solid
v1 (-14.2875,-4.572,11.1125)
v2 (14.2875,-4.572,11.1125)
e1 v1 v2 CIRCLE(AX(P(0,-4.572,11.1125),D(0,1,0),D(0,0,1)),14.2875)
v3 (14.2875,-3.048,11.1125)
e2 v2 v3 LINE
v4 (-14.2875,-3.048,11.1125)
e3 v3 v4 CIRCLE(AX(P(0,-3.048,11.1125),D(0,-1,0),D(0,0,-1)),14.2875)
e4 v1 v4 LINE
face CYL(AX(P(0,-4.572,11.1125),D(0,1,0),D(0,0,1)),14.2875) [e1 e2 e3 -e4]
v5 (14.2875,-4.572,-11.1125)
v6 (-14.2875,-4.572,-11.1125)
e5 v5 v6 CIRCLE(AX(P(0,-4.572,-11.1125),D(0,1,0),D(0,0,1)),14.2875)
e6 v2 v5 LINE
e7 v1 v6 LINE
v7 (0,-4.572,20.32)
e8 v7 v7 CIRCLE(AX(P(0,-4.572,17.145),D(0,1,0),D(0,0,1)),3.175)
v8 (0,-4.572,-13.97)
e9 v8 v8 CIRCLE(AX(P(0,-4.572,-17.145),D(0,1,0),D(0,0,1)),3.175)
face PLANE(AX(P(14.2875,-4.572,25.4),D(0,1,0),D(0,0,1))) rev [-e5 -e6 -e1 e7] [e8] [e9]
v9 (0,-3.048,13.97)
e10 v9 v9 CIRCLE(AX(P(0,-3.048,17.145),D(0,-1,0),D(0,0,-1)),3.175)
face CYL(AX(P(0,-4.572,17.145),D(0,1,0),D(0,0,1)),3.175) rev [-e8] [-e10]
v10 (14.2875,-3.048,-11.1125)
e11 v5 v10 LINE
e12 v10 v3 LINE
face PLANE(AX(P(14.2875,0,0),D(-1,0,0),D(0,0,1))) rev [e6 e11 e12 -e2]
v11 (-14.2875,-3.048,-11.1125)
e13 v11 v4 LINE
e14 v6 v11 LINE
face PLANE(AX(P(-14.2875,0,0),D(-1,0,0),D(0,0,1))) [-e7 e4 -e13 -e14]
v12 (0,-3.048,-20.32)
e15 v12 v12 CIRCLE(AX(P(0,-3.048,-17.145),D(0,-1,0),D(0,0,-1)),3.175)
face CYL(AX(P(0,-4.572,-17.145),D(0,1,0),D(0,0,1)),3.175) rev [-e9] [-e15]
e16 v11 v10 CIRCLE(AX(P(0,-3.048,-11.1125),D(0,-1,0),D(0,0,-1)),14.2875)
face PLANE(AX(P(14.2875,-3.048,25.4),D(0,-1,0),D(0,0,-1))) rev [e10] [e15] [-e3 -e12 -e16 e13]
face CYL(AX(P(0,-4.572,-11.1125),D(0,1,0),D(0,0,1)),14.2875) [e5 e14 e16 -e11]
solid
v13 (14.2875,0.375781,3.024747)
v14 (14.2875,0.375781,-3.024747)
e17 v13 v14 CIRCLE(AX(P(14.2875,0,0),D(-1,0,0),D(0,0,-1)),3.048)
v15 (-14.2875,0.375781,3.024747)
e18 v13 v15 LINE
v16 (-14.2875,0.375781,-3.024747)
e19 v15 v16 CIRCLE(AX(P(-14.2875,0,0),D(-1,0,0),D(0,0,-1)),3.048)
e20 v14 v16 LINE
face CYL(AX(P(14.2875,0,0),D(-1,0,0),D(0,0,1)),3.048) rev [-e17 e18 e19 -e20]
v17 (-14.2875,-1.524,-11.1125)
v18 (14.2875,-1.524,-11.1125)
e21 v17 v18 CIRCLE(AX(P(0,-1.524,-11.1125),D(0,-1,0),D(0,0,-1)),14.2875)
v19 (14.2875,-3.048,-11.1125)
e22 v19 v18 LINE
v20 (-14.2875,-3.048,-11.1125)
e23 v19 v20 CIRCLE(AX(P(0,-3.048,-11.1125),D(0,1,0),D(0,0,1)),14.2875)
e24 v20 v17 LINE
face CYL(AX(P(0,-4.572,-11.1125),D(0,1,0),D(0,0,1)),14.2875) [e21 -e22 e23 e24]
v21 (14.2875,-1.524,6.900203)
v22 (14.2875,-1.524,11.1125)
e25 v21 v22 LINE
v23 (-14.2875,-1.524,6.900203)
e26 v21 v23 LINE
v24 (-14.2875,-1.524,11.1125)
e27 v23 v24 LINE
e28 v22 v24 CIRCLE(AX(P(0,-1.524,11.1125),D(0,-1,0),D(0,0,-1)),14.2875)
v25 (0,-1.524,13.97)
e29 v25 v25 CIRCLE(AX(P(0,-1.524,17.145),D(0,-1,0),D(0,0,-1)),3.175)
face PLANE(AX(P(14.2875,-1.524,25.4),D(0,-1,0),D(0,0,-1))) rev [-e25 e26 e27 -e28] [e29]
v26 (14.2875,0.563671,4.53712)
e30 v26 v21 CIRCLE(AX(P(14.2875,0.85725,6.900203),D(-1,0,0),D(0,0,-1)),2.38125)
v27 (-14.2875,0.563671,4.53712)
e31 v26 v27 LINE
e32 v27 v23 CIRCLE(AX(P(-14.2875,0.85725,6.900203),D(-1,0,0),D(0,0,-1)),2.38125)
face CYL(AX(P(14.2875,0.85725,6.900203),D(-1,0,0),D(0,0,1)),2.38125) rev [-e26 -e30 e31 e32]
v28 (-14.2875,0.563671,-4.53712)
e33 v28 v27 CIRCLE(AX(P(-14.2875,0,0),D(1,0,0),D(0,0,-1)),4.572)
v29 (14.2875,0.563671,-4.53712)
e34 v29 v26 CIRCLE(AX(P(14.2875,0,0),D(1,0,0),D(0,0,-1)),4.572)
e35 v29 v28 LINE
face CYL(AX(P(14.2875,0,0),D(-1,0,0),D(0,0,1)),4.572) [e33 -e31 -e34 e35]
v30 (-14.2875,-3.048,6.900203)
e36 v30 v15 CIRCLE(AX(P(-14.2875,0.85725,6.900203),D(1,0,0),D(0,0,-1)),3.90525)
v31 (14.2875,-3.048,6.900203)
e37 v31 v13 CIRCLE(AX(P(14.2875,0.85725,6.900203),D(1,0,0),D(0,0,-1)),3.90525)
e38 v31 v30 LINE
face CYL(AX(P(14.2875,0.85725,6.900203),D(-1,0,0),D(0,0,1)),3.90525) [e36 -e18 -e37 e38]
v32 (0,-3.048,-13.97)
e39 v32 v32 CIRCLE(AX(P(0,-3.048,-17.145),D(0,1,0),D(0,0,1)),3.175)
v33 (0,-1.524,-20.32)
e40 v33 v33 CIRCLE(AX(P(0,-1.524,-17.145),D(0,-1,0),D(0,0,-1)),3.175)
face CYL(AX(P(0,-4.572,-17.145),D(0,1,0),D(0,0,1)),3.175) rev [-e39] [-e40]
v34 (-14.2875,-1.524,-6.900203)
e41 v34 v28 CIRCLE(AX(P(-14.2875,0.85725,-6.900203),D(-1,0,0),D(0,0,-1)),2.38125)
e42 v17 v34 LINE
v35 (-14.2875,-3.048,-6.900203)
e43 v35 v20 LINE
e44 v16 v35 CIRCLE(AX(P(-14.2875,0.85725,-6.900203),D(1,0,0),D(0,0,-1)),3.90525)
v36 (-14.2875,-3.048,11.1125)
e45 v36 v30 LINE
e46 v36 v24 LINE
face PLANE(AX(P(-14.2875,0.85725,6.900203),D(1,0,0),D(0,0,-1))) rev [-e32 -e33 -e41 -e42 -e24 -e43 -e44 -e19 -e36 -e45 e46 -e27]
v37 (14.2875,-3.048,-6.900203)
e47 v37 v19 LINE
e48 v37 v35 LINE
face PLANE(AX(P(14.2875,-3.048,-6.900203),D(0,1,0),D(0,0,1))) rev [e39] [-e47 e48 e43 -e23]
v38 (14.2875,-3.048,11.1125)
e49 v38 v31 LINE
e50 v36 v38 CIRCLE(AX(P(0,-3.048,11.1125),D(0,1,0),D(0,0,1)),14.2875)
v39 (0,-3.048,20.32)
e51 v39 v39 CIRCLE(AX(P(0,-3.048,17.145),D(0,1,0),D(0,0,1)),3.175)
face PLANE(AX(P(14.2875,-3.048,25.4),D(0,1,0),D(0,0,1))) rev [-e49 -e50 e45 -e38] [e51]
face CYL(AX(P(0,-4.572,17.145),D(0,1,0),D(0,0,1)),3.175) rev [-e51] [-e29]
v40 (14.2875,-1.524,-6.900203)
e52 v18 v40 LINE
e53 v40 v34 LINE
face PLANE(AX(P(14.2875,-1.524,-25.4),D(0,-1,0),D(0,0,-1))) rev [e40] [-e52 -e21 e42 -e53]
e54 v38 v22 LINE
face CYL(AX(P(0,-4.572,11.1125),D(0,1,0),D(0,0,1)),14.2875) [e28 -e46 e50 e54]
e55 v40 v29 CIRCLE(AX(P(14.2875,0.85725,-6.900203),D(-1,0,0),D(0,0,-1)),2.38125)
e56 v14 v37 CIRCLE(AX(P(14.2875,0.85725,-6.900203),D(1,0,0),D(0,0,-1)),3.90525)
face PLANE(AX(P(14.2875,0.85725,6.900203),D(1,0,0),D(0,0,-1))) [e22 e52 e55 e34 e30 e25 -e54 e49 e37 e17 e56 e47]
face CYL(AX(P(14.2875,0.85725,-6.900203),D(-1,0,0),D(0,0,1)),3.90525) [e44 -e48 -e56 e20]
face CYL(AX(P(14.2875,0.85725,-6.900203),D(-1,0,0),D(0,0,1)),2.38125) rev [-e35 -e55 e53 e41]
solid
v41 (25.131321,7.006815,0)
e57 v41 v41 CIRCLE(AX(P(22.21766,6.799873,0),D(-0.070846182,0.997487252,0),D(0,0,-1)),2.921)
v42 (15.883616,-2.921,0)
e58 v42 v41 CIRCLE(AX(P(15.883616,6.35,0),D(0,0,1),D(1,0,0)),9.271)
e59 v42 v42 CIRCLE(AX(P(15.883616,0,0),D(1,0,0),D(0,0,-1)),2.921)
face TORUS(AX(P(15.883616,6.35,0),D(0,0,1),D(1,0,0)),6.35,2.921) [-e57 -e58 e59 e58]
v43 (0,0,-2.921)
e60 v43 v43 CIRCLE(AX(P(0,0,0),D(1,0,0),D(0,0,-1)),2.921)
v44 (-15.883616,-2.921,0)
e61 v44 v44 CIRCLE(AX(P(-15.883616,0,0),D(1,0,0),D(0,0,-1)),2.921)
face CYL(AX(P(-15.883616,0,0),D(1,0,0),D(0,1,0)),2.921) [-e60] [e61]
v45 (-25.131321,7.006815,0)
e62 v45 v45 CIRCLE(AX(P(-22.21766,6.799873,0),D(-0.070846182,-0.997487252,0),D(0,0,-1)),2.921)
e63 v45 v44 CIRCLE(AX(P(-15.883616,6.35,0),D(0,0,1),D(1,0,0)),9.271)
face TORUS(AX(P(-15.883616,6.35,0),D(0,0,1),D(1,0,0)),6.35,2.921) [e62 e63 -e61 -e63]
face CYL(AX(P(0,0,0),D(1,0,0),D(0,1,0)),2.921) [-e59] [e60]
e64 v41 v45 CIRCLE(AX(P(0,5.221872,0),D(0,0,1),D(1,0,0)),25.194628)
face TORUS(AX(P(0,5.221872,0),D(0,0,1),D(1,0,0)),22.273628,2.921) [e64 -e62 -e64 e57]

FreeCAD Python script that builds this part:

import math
import FreeCAD as App
import Part
import Sketcher
Q = App.Units.Quantity


def add_polygon(sketch, points):
    """Adds a closed chain of lines whose ends are joined by coincident constraints."""
    first, n = sketch.GeometryCount, len(points)
    for a, b in zip(points, points[1:] + points[:1]):
        sketch.addGeometry(Part.LineSegment(App.Vector(*a, 0), App.Vector(*b, 0)), False)
    for i in range(n):
        sketch.addConstraint(Sketcher.Constraint("Coincident", first + i, 2, first + (i + 1) % n, 1))

doc = App.newDocument("Part")
body = doc.addObject("PartDesign::Body", "Body")

# Sketch on YZ plane
sketch1 = body.newObject("Sketcher::SketchObject", "Sketch")
sketch1.AttachmentSupport = (doc.getObject("YZ_Plane"), [""])
sketch1.MapMode = "FlatFace"
sketch1.addGeometry([
    Part.LineSegment(App.Vector(-3.048, 25.4, 0), App.Vector(-3.048, 6.900203, 0)),  # 0
    Part.ArcOfCircle(Part.Circle(App.Vector(0.85725, 6.900203, 0), App.Vector(0, 0, 1), 3.90525), math.radians(180), math.radians(262.918118)),  # 1
    Part.ArcOfCircle(Part.Circle(App.Vector(0, 0, 0), App.Vector(0, 0, 1), 3.048), math.radians(-82.918118), math.radians(82.918118)),  # 2
    Part.ArcOfCircle(Part.Circle(App.Vector(0.85725, -6.900203, 0), App.Vector(0, 0, 1), 3.90525), math.radians(97.081882), math.radians(180)),  # 3
    Part.LineSegment(App.Vector(-3.048, -6.900203, 0), App.Vector(-3.048, -25.4, 0)),  # 4
    Part.LineSegment(App.Vector(-3.048, -25.4, 0), App.Vector(-1.524, -25.4, 0)),  # 5
    Part.LineSegment(App.Vector(-1.524, -25.4, 0), App.Vector(-1.524, -6.900203, 0)),  # 6
    Part.ArcOfCircle(Part.Circle(App.Vector(0.85725, -6.900203, 0), App.Vector(0, 0, 1), 2.38125), math.radians(97.081882), math.radians(180)),  # 7
    Part.ArcOfCircle(Part.Circle(App.Vector(0, 0, 0), App.Vector(0, 0, 1), 4.572), math.radians(-82.918118), math.radians(82.918118)),  # 8
    Part.ArcOfCircle(Part.Circle(App.Vector(0.85725, 6.900203, 0), App.Vector(0, 0, 1), 2.38125), math.radians(-180), math.radians(-97.081882)),  # 9
    Part.LineSegment(App.Vector(-1.524, 6.900203, 0), App.Vector(-1.524, 25.4, 0)),  # 10
    Part.LineSegment(App.Vector(-1.524, 25.4, 0), App.Vector(-3.048, 25.4, 0)),  # 11
], False)
sketch1.addConstraint([
    Sketcher.Constraint("Tangent", 0, 2, 1, 1),
    Sketcher.Constraint("Tangent", 1, 2, 2, 2),
    Sketcher.Constraint("Tangent", 2, 1, 3, 1),
    Sketcher.Constraint("Tangent", 3, 2, 4, 1),
    Sketcher.Constraint("Coincident", 4, 2, 5, 1),
    Sketcher.Constraint("Coincident", 5, 2, 6, 1),
    Sketcher.Constraint("Tangent", 6, 2, 7, 2),
    Sketcher.Constraint("Tangent", 7, 1, 8, 1),
    Sketcher.Constraint("Tangent", 8, 2, 9, 2),
    Sketcher.Constraint("Tangent", 9, 1, 10, 1),
    Sketcher.Constraint("Coincident", 10, 2, 11, 1),
    Sketcher.Constraint("Coincident", 11, 2, 0, 1),
    Sketcher.Constraint("Vertical", 0),
    Sketcher.Constraint("Vertical", 4),
    Sketcher.Constraint("Horizontal", 5),
    Sketcher.Constraint("Vertical", 6),
    Sketcher.Constraint("Vertical", 10),
    Sketcher.Constraint("Horizontal", 11),
    Sketcher.Constraint("Coincident", 2, 3, -1, 1),
    Sketcher.Constraint("Coincident", 8, 3, -1, 1),
    Sketcher.Constraint("Coincident", 7, 3, 3, 3),
    Sketcher.Constraint("Coincident", 9, 3, 1, 3),
    Sketcher.Constraint("Equal", 1, 3),
    Sketcher.Constraint("Symmetric", 5, 2, 10, 2, -1),
    Sketcher.Constraint("Radius", 2, Q("0.12 in")),
    Sketcher.Constraint("Radius", 8, Q("0.18 in")),
    Sketcher.Constraint("DistanceY", 4, 2, -1, 1, Q("1 in")),
    Sketcher.Constraint("Radius", 7, Q("0.09375 in")),
    Sketcher.Constraint("DistanceX", 0, 2, -1, 1, Q("0.12 in")),
])
pad1 = body.newObject("PartDesign::Pad", "Pad")
pad1.Profile = sketch1
pad1.Type = "TwoLengths"
pad1.Length = Q("0.5625 in")
pad1.Length2 = Q("0.5625 in")
body2 = doc.addObject("PartDesign::Body", "Body001")

# Sketch on YZ plane
sketch2 = body2.newObject("Sketcher::SketchObject", "Sketch001")
sketch2.AttachmentSupport = (doc.getObject("YZ_Plane001"), [""])
sketch2.MapMode = "FlatFace"
add_polygon(sketch2, [(-3.048, 25.4), (-4.572, 25.4), (-4.572, -25.4), (-3.048, -25.4)])  # lines 0-3
sketch2.addConstraint([
    Sketcher.Constraint("Horizontal", 0),
    Sketcher.Constraint("Vertical", 1),
    Sketcher.Constraint("Horizontal", 2),
    Sketcher.Constraint("Vertical", 3),
    Sketcher.Constraint("DistanceY", 1, 2, 1, 1, Q("2 in")),
    Sketcher.Constraint("DistanceY", -1, 1, 0, 2, Q("1 in")),
    Sketcher.Constraint("DistanceX", 0, 2, 0, 1, Q("0.06 in")),
    Sketcher.Constraint("DistanceX", 0, 2, -1, 1, Q("0.18 in")),
])
pad2 = body2.newObject("PartDesign::Pad", "Pad001")
pad2.Profile = sketch2
pad2.Type = "TwoLengths"
pad2.Length = Q("0.5625 in")
pad2.Length2 = Q("0.5625 in")
body3 = doc.addObject("PartDesign::Body", "Body002")

# Sketch on XZ plane
sketch3 = body3.newObject("Sketcher::SketchObject", "Sketch002")
sketch3.AttachmentSupport = (doc.getObject("XZ_Plane002"), [""])
sketch3.MapMode = "FlatFace"
add_polygon(sketch3, [(-21.188, -32.3), (-21.188, 32.3), (21.188, 32.3), (21.188, -32.3)])  # lines 0-3
sketch3.addGeometry(Part.ArcOfCircle(Part.Circle(App.Vector(0, 11.1125, 0), App.Vector(0, 0, 1), 14.2875), math.radians(0), math.radians(180)), False)  # 4
sketch3.addGeometry(Part.LineSegment(App.Vector(-14.2875, 11.1125, 0), App.Vector(-14.2875, -11.1125, 0)), False)  # 5
sketch3.addGeometry(Part.ArcOfCircle(Part.Circle(App.Vector(0, -11.1125, 0), App.Vector(0, 0, 1), 14.2875), math.radians(180), math.radians(360)), False)  # 6
sketch3.addGeometry(Part.LineSegment(App.Vector(14.2875, -11.1125, 0), App.Vector(14.2875, 11.1125, 0)), False)  # 7
sketch3.addConstraint([
    Sketcher.Constraint("Tangent", 4, 2, 5, 1),
    Sketcher.Constraint("Tangent", 5, 2, 6, 1),
    Sketcher.Constraint("Tangent", 6, 2, 7, 1),
    Sketcher.Constraint("Tangent", 7, 2, 4, 1),
    Sketcher.Constraint("Vertical", 0),
    Sketcher.Constraint("Horizontal", 1),
    Sketcher.Constraint("Vertical", 2),
    Sketcher.Constraint("Horizontal", 3),
    Sketcher.Constraint("Vertical", 5),
    Sketcher.Constraint("Vertical", 7),
    Sketcher.Constraint("Symmetric", 4, 3, 6, 3, -1, 1),
    Sketcher.Constraint("Symmetric", 0, 2, 2, 2, -1, 1),
    Sketcher.Constraint("Radius", 4, Q("0.5625 in")),
    Sketcher.Constraint("DistanceY", 5, 2, 5, 1, Q("0.875 in")),
    Sketcher.Constraint("DistanceX", 1, 1, 1, 2, 42.376),
    Sketcher.Constraint("DistanceY", 0, 1, 0, 2, 64.6),
])
pad3 = body3.newObject("PartDesign::Pad", "Pad002")
pad3.Profile = sketch3
pad3.Length = 30.499082
doc.recompute()

body4 = doc.addObject("PartDesign::Body", "Body003")
body4.BaseFeature = body3
boolean = body.newObject("PartDesign::Boolean", "Boolean")
boolean.Type = "Cut"
boolean.addObjects([body4])
doc.recompute()

boolean2 = body2.newObject("PartDesign::Boolean", "Boolean001")
boolean2.Type = "Cut"
boolean2.addObjects([body3])
body5 = doc.addObject("PartDesign::Body", "Body004")
body5.AllowCompound = True

# Sketch on XZ plane
sketch4 = body5.newObject("Sketcher::SketchObject", "Sketch003")
sketch4.AttachmentSupport = (doc.getObject("XZ_Plane004"), [""])
sketch4.MapMode = "FlatFace"
sketch4.addGeometry([
    Part.Circle(App.Vector(0, 17.145, 0), App.Vector(0, 0, 1), 3.175),
    Part.Circle(App.Vector(0, -17.145, 0), App.Vector(0, 0, 1), 3.175),
], False)
sketch4.addConstraint([
    Sketcher.Constraint("Equal", 0, 1),
    Sketcher.Constraint("Symmetric", 0, 3, 1, 3, -1, 1),
    Sketcher.Constraint("PointOnObject", 0, 3, -2),
    Sketcher.Constraint("Diameter", 0, Q("0.25 in")),
    Sketcher.Constraint("DistanceY", 1, 3, 0, 3, Q("1.35 in")),
])
pad4 = body5.newObject("PartDesign::Pad", "Pad003")
pad4.Profile = sketch4
pad4.Length = 30.499082
doc.recompute()

body6 = doc.addObject("PartDesign::Body", "Body005")
body6.BaseFeature = body5
boolean3 = body.newObject("PartDesign::Boolean", "Boolean002")
boolean3.Type = "Cut"
boolean3.addObjects([body6])
doc.recompute()

boolean4 = body2.newObject("PartDesign::Boolean", "Boolean003")
boolean4.Type = "Cut"
boolean4.addObjects([body5])
body7 = doc.addObject("PartDesign::Body", "Body006")

# Sketch on YZ plane
sketch5 = body7.newObject("Sketcher::SketchObject", "Sketch004")
sketch5.AttachmentSupport = (doc.getObject("YZ_Plane006"), [""])
sketch5.MapMode = "FlatFace"
sketch5.addGeometry(Part.Circle(App.Vector(0, 0, 0), App.Vector(0, 0, 1), 2.921), False)
sketch5.addConstraint([
    Sketcher.Constraint("Coincident", 0, 3, -1, 1),
    Sketcher.Constraint("Diameter", 0, Q("0.23 in")),
])

# Sketch on XY plane
sketch6 = body7.newObject("Sketcher::SketchObject", "Sketch005")
sketch6.AttachmentSupport = (doc.getObject("XY_Plane006"), [""])
sketch6.MapMode = "FlatFace"
sketch6.addGeometry([
    Part.LineSegment(App.Vector(-15.883616, 0, 0), App.Vector(15.883616, 0, 0)),
    Part.ArcOfCircle(Part.Circle(App.Vector(15.883616, 6.35, 0), App.Vector(0, 0, 1), 6.35), math.radians(-90), math.radians(4.062591)),
    Part.ArcOfCircle(Part.Circle(App.Vector(0, 5.221872, 0), App.Vector(0, 0, 1), 22.273628), math.radians(4.062591), math.radians(175.937409)),
    Part.ArcOfCircle(Part.Circle(App.Vector(-15.883616, 6.35, 0), App.Vector(0, 0, 1), 6.35), math.radians(175.937409), math.radians(270)),
], False)
sketch6.addConstraint([
    Sketcher.Constraint("Tangent", 0, 2, 1, 1),
    Sketcher.Constraint("Tangent", 1, 2, 2, 1),
    Sketcher.Constraint("Tangent", 2, 2, 3, 1),
    Sketcher.Constraint("Tangent", 3, 2, 0, 1),
    Sketcher.Constraint("Horizontal", 0),
    Sketcher.Constraint("Equal", 1, 3),
    Sketcher.Constraint("Symmetric", 0, 2, 3, 2, -1, 1),
    Sketcher.Constraint("Radius", 1, Q("0.25 in")),
    Sketcher.Constraint("Radius", 2, 22.273628),
    Sketcher.Constraint("DistanceY", 2, 3, 1, 2, 1.578002),
])
doc.recompute()

additivepipe = body7.newObject("PartDesign::AdditivePipe", "AdditivePipe")
additivepipe.Profile = sketch5
additivepipe.Spine = (sketch6, ["Edge1", "Edge2", "Edge3", "Edge4"])

doc.recompute()
